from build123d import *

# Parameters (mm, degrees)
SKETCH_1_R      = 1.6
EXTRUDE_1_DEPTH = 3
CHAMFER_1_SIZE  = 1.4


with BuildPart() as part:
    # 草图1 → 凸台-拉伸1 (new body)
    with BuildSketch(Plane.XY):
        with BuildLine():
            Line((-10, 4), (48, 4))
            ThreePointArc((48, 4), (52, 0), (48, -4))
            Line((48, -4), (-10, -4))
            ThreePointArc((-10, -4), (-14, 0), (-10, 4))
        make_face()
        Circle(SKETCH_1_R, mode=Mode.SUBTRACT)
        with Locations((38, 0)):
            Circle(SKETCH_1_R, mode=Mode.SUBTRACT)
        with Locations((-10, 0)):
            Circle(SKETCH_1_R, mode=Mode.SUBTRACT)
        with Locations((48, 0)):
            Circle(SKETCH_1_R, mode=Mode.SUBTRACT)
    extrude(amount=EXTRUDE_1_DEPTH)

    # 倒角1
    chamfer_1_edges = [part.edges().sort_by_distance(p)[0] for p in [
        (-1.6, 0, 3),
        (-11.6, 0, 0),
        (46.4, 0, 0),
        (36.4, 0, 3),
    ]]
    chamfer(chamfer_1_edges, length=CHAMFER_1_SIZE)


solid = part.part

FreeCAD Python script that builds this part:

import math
import FreeCAD as App
import Part
import Sketcher


def edges_at(feature, points):
    """Names of the edges that pass closest to the given points."""
    edges = feature.Shape.Edges
    near = lambda p: min(range(len(edges)), key=lambda i: edges[i].distToShape(Part.Vertex(*p))[0])
    return sorted({f"Edge{near(p) + 1}" for p in points})

doc = App.newDocument("Part")
body = doc.addObject("PartDesign::Body", "Body")

# Sketch on XY plane
sketch1 = doc.addObject("Sketcher::SketchObject", "Sketch")
body.addObject(sketch1)
sketch1.AttachmentSupport = (doc.XY_Plane, [""])
sketch1.MapMode = "FlatFace"
sketch1.addGeometry(Part.LineSegment(App.Vector(48, 4, 0), App.Vector(-10, 4, 0)), False)
sketch1.addGeometry(Part.ArcOfCircle(Part.Circle(App.Vector(-10, 0, 0), App.Vector(0, 0, 1), 4), math.radians(90), math.radians(270)), False)
sketch1.addGeometry(Part.LineSegment(App.Vector(-10, -4, 0), App.Vector(48, -4, 0)), False)
sketch1.addGeometry(Part.ArcOfCircle(Part.Circle(App.Vector(48, 0, 0), App.Vector(0, 0, 1), 4), math.radians(-90), math.radians(90)), False)
sketch1.addGeometry(Part.Circle(App.Vector(48, 0, 0), App.Vector(0, 0, 1), 1.6), False)
sketch1.addGeometry(Part.Circle(App.Vector(38, 0, 0), App.Vector(0, 0, 1), 1.6), False)
sketch1.addGeometry(Part.Circle(App.Vector(0, 0, 0), App.Vector(0, 0, 1), 1.6), False)
sketch1.addGeometry(Part.Circle(App.Vector(-10, 0, 0), App.Vector(0, 0, 1), 1.6), False)
sketch1.addConstraint(Sketcher.Constraint("Tangent", 0, 2, 1, 1))
sketch1.addConstraint(Sketcher.Constraint("Tangent", 1, 2, 2, 1))
sketch1.addConstraint(Sketcher.Constraint("Tangent", 2, 2, 3, 1))
sketch1.addConstraint(Sketcher.Constraint("Tangent", 3, 2, 0, 1))
sketch1.addConstraint(Sketcher.Constraint("Horizontal", 0))
sketch1.addConstraint(Sketcher.Constraint("Horizontal", 2))
sketch1.addConstraint(Sketcher.Constraint("Coincident", 6, 3, -1, 1))
sketch1.addConstraint(Sketcher.Constraint("Coincident", 4, 3, 3, 3))
sketch1.addConstraint(Sketcher.Constraint("Coincident", 7, 3, 1, 3))
sketch1.addConstraint(Sketcher.Constraint("Equal", 4, 5))
sketch1.addConstraint(Sketcher.Constraint("Equal", 5, 6))
sketch1.addConstraint(Sketcher.Constraint("Equal", 6, 7))
sketch1.addConstraint(Sketcher.Constraint("PointOnObject", 1, 3, -1))
sketch1.addConstraint(Sketcher.Constraint("PointOnObject", 5, 3, -1))
sketch1.addConstraint(Sketcher.Constraint("Radius", 1, 4.0))
sketch1.addConstraint(Sketcher.Constraint("Diameter", 4, 3.2))
sketch1.addConstraint(Sketcher.Constraint("DistanceX", 0, 2, 0, 1, 58.0))
sketch1.addConstraint(Sketcher.Constraint("DistanceX", 1, 3, -1, 1, 10.0))
sketch1.addConstraint(Sketcher.Constraint("DistanceX", -1, 1, 5, 3, 38.0))
pad1 = doc.addObject("PartDesign::Pad", "Pad")
body.addObject(pad1)
pad1.Profile = sketch1
pad1.Length = 3
doc.recompute()

chamfer = doc.addObject("PartDesign::Chamfer", "Chamfer")
body.addObject(chamfer)
chamfer.Base = (pad1, edges_at(pad1, [
    (-1.6, 0, 3),
    (-11.6, 0, 0),
    (46.4, 0, 0),
    (36.4, 0, 3),
]))
chamfer.Size = 1.4

doc.recompute()
